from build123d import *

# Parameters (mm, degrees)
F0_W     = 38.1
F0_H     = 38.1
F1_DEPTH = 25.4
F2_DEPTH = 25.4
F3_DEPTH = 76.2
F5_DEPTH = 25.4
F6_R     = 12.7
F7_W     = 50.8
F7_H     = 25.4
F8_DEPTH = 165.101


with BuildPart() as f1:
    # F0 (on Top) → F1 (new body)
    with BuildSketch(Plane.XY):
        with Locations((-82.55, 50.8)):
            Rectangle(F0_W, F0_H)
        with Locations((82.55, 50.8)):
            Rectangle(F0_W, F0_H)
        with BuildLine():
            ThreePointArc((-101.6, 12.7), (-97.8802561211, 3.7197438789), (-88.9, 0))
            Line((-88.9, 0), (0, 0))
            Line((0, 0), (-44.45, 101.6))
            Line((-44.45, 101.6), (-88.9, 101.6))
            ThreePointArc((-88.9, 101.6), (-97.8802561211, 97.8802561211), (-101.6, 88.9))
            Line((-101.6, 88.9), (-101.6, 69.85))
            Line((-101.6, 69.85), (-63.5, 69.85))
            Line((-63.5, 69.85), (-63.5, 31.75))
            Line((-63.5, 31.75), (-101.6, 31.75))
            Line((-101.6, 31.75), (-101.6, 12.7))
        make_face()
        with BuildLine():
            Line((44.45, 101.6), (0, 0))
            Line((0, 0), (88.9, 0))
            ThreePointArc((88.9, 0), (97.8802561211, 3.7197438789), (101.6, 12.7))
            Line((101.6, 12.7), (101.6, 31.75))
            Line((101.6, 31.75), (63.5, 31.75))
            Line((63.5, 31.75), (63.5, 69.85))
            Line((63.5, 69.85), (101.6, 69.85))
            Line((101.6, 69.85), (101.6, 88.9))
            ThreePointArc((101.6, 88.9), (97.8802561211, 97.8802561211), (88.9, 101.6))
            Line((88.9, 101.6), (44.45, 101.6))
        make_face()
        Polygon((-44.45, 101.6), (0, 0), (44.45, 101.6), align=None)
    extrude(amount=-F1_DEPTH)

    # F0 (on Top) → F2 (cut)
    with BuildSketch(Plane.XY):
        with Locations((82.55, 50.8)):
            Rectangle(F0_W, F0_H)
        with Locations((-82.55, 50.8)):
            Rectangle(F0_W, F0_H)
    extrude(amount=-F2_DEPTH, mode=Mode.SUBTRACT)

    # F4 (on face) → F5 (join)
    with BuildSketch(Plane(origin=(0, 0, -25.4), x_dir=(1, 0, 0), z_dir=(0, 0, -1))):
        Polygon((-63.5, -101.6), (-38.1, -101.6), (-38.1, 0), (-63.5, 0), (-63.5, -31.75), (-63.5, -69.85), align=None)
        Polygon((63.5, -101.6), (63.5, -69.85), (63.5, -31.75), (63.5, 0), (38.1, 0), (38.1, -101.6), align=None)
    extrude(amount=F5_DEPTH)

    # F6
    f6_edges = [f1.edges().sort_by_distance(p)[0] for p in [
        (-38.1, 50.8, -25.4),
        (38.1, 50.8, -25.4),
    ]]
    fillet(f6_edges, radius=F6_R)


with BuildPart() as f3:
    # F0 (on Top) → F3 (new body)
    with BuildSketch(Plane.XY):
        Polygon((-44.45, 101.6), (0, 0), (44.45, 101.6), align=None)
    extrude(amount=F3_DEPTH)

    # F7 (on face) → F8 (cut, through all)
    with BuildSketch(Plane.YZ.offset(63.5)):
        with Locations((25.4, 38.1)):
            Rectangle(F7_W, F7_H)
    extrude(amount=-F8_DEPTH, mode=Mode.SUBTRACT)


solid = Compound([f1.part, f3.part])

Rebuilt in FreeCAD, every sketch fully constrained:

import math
import FreeCAD as App
import Part
import Sketcher

V = App.Vector
Q = App.Units.Quantity


def edges_at(feature, points):
    """Names of the edges that pass closest to the given points."""
    edges = feature.Shape.Edges
    near = lambda p: min(range(len(edges)), key=lambda i: edges[i].distToShape(Part.Vertex(*p))[0])
    return sorted({f"Edge{near(p) + 1}" for p in points})

doc = App.newDocument("Part")
params = doc.addObject("Spreadsheet::Sheet", "Params")
for row, (alias, value) in enumerate([
    ("sketch1_radius", "0.5 in"),
    ("sketch1_width", "7 in"),
    ("sketch1_height", "3 in"),
    ("pad1_length", "1 in"),
    ("sketch2_width", "1.5 in"),
    ("pocket1_length", "1 in"),
    ("sketch3_width", "1 in"),
    ("sketch3_height", "4 in"),
    ("pad2_length", "1 in"),
    ("fillet_radius", "0.5 in"),
    ("sketch4_width", "3.5 in"),
    ("pad3_length", "3 in"),
    ("sketch5_width", "2 in"),
    ("sketch5_height", "1 in"),
], start=1):
    params.set(f"A{row}", alias)
    params.set(f"B{row}", "=" + value)
    params.setAlias(f"B{row}", alias)

body = doc.addObject("PartDesign::Body", "Body")

# Sketch on XY plane
sketch1 = body.newObject("Sketcher::SketchObject", "Sketch")
sketch1.AttachmentSupport = (doc.getObject("XY_Plane"), [""])
sketch1.MapMode = "FlatFace"
sketch1.addGeometry([
    Part.ArcOfCircle(Part.Circle(V(-89, 13, 0), V(0, 0, 1), 13), math.radians(180), math.radians(270)),  # 0
    Part.LineSegment(V(-89, 0, 0), V(89, 0, 0)),  # 1
    Part.ArcOfCircle(Part.Circle(V(89, 13, 0), V(0, 0, 1), 13), math.radians(-90), math.radians(0)),  # 2
    Part.LineSegment(V(102, 13, 0), V(102, 89, 0)),  # 3
    Part.ArcOfCircle(Part.Circle(V(89, 89, 0), V(0, 0, 1), 13), math.radians(0), math.radians(90)),  # 4
    Part.LineSegment(V(89, 102, 0), V(-89, 102, 0)),  # 5
    Part.ArcOfCircle(Part.Circle(V(-89, 89, 0), V(0, 0, 1), 13), math.radians(90), math.radians(180)),  # 6
    Part.LineSegment(V(-102, 89, 0), V(-102, 13, 0)),  # 7
], False)
sketch1.addConstraint([
    Sketcher.Constraint("Tangent", 0, 2, 1, 1),
    Sketcher.Constraint("Tangent", 1, 2, 2, 1),
    Sketcher.Constraint("Tangent", 2, 2, 3, 1),
    Sketcher.Constraint("Tangent", 3, 2, 4, 1),
    Sketcher.Constraint("Tangent", 4, 2, 5, 1),
    Sketcher.Constraint("Tangent", 5, 2, 6, 1),
    Sketcher.Constraint("Tangent", 6, 2, 7, 1),
    Sketcher.Constraint("Tangent", 7, 2, 0, 1),
    Sketcher.Constraint("Horizontal", 1),
    Sketcher.Constraint("Vertical", 3),
    Sketcher.Constraint("Horizontal", 5),
    Sketcher.Constraint("Vertical", 7),
    Sketcher.Constraint("Equal", 0, 2),
    Sketcher.Constraint("Equal", 2, 4),
    Sketcher.Constraint("Equal", 4, 6),
    Sketcher.Constraint("Symmetric", 0, 2, 1, 2, -1, 1),
    Sketcher.Constraint("Radius", 0, Q("0.5 in")),
    Sketcher.Constraint("DistanceX", 1, 1, 1, 2, Q("7 in")),
    Sketcher.Constraint("DistanceY", 3, 1, 3, 2, Q("3 in")),
])
sketch1.setExpression("Constraints[16]", "Params.sketch1_radius")
sketch1.setExpression("Constraints[17]", "Params.sketch1_width")
sketch1.setExpression("Constraints[18]", "Params.sketch1_height")
pad1 = body.newObject("PartDesign::Pad", "Pad")
pad1.Profile = sketch1
pad1.setExpression("Length", "Params.pad1_length")
pad1.Reversed = True

# Sketch on XY plane
sketch2 = body.newObject("Sketcher::SketchObject", "Sketch001")
sketch2.AttachmentSupport = (doc.getObject("XY_Plane"), [""])
sketch2.MapMode = "FlatFace"
sketch2.addGeometry([
    Part.LineSegment(V(64, 70, 0), V(64, 32, 0)),  # 0
    Part.LineSegment(V(64, 32, 0), V(102, 32, 0)),  # 1
    Part.LineSegment(V(102, 32, 0), V(102, 70, 0)),  # 2
    Part.LineSegment(V(102, 70, 0), V(64, 70, 0)),  # 3
    Part.LineSegment(V(-102, 70, 0), V(-102, 32, 0)),  # 4
    Part.LineSegment(V(-102, 32, 0), V(-64, 32, 0)),  # 5
    Part.LineSegment(V(-64, 32, 0), V(-64, 70, 0)),  # 6
    Part.LineSegment(V(-64, 70, 0), V(-102, 70, 0)),  # 7
], False)
sketch2.addConstraint([
    Sketcher.Constraint("Coincident", 0, 2, 1, 1),
    Sketcher.Constraint("Coincident", 1, 2, 2, 1),
    Sketcher.Constraint("Coincident", 2, 2, 3, 1),
    Sketcher.Constraint("Coincident", 3, 2, 0, 1),
    Sketcher.Constraint("Coincident", 4, 2, 5, 1),
    Sketcher.Constraint("Coincident", 5, 2, 6, 1),
    Sketcher.Constraint("Coincident", 6, 2, 7, 1),
    Sketcher.Constraint("Coincident", 7, 2, 4, 1),
    Sketcher.Constraint("Vertical", 0),
    Sketcher.Constraint("Horizontal", 1),
    Sketcher.Constraint("Vertical", 2),
    Sketcher.Constraint("Horizontal", 3),
    Sketcher.Constraint("Vertical", 4),
    Sketcher.Constraint("Horizontal", 5),
    Sketcher.Constraint("Vertical", 6),
    Sketcher.Constraint("Horizontal", 7),
    Sketcher.Constraint("Symmetric", 1, 2, 4, 2, -2),
    Sketcher.Constraint("Symmetric", 3, 2, 6, 2, -2),
    Sketcher.Constraint("Equal", 7, 0),
    Sketcher.Constraint("DistanceX", 1, 1, 1, 2, Q("1.5 in")),
    Sketcher.Constraint("DistanceX", -1, 1, 1, 2, Q("4 in")),
    Sketcher.Constraint("DistanceY", -1, 1, 0, 2, Q("1.25 in")),
])
sketch2.setExpression("Constraints[19]", "Params.sketch2_width")
pocket1 = body.newObject("PartDesign::Pocket", "Pocket")
pocket1.Profile = sketch2
pocket1.setExpression("Length", "Params.pocket1_length")

# Sketch on XY plane
sketch3 = body.newObject("Sketcher::SketchObject", "Sketch002")
sketch3.AttachmentSupport = (doc.getObject("XY_Plane"), [""])
sketch3.MapMode = "FlatFace"
sketch3.AttachmentOffset = App.Placement(V(0, 0, -1 * 25.4), App.Rotation())
sketch3.addGeometry([
    Part.LineSegment(V(-64, 102, 0), V(-38, 102, 0)),  # 0
    Part.LineSegment(V(-38, 102, 0), V(-38, 0, 0)),  # 1
    Part.LineSegment(V(-38, 0, 0), V(-64, 0, 0)),  # 2
    Part.LineSegment(V(-64, 0, 0), V(-64, 102, 0)),  # 3
    Part.LineSegment(V(64, 102, 0), V(64, 0, 0)),  # 4
    Part.LineSegment(V(64, 0, 0), V(38, 0, 0)),  # 5
    Part.LineSegment(V(38, 0, 0), V(38, 102, 0)),  # 6
    Part.LineSegment(V(38, 102, 0), V(64, 102, 0)),  # 7
], False)
sketch3.addConstraint([
    Sketcher.Constraint("Coincident", 0, 2, 1, 1),
    Sketcher.Constraint("Coincident", 1, 2, 2, 1),
    Sketcher.Constraint("Coincident", 2, 2, 3, 1),
    Sketcher.Constraint("Coincident", 3, 2, 0, 1),
    Sketcher.Constraint("Coincident", 4, 2, 5, 1),
    Sketcher.Constraint("Coincident", 5, 2, 6, 1),
    Sketcher.Constraint("Coincident", 6, 2, 7, 1),
    Sketcher.Constraint("Coincident", 7, 2, 4, 1),
    Sketcher.Constraint("Horizontal", 0),
    Sketcher.Constraint("Vertical", 1),
    Sketcher.Constraint("Horizontal", 2),
    Sketcher.Constraint("Vertical", 3),
    Sketcher.Constraint("Vertical", 4),
    Sketcher.Constraint("Horizontal", 5),
    Sketcher.Constraint("Vertical", 6),
    Sketcher.Constraint("Horizontal", 7),
    Sketcher.Constraint("Symmetric", 2, 2, 4, 2, -1, 1),
    Sketcher.Constraint("Symmetric", 1, 2, 5, 2, -2),
    Sketcher.Constraint("Horizontal", 3, 2, 6, 2),
    Sketcher.Constraint("DistanceX", 0, 1, 0, 2, Q("1 in")),
    Sketcher.Constraint("DistanceY", 1, 2, 1, 1, Q("4 in")),
    Sketcher.Constraint("DistanceX", 1, 2, 4, 2, Q("4 in")),
])
sketch3.setExpression("Constraints[19]", "Params.sketch3_width")
sketch3.setExpression("Constraints[20]", "Params.sketch3_height")
pad2 = body.newObject("PartDesign::Pad", "Pad001")
pad2.Profile = sketch3
pad2.setExpression("Length", "Params.pad2_length")
pad2.Reversed = True
doc.recompute()

fillet = body.newObject("PartDesign::Fillet", "Fillet")
fillet.Base = (pad2, edges_at(pad2, [(-38.1, 50.8, -25.4), (38.1, 50.8, -25.4)]))
fillet.setExpression("Radius", "Params.fillet_radius")
body2 = doc.addObject("PartDesign::Body", "Body001")

# Sketch on XY plane
sketch4 = body2.newObject("Sketcher::SketchObject", "Sketch003")
sketch4.AttachmentSupport = (doc.getObject("XY_Plane001"), [""])
sketch4.MapMode = "FlatFace"
sketch4.addGeometry([
    Part.LineSegment(V(-44, 102, 0), V(0, 0, 0)),
    Part.LineSegment(V(0, 0, 0), V(44, 102, 0)),
    Part.LineSegment(V(44, 102, 0), V(-44, 102, 0)),
], False)
sketch4.addConstraint([
    Sketcher.Constraint("Coincident", 0, 2, 1, 1),
    Sketcher.Constraint("Coincident", 1, 2, 2, 1),
    Sketcher.Constraint("Coincident", 2, 2, 0, 1),
    Sketcher.Constraint("Horizontal", 2),
    Sketcher.Constraint("Coincident", 0, 2, -1, 1),
    Sketcher.Constraint("Equal", 0, 1),
    Sketcher.Constraint("DistanceX", 2, 2, 2, 1, Q("3.5 in")),
    Sketcher.Constraint("DistanceY", -1, 1, 1, 2, Q("4 in")),
])
sketch4.setExpression("Constraints[6]", "Params.sketch4_width")
pad3 = body2.newObject("PartDesign::Pad", "Pad002")
pad3.Profile = sketch4
pad3.setExpression("Length", "Params.pad3_length")

# Sketch on YZ plane
sketch5 = body2.newObject("Sketcher::SketchObject", "Sketch004")
sketch5.AttachmentSupport = (doc.getObject("YZ_Plane001"), [""])
sketch5.MapMode = "FlatFace"
sketch5.AttachmentOffset = App.Placement(V(0, 0, 2.5 * 25.4), App.Rotation())
sketch5.addGeometry([
    Part.LineSegment(V(0, 51, 0), V(0, 25, 0)),
    Part.LineSegment(V(0, 25, 0), V(51, 25, 0)),
    Part.LineSegment(V(51, 25, 0), V(51, 51, 0)),
    Part.LineSegment(V(51, 51, 0), V(0, 51, 0)),
], False)
sketch5.addConstraint([
    Sketcher.Constraint("Coincident", 0, 2, 1, 1),
    Sketcher.Constraint("Coincident", 1, 2, 2, 1),
    Sketcher.Constraint("Coincident", 2, 2, 3, 1),
    Sketcher.Constraint("Coincident", 3, 2, 0, 1),
    Sketcher.Constraint("Vertical", 0),
    Sketcher.Constraint("Horizontal", 1),
    Sketcher.Constraint("Vertical", 2),
    Sketcher.Constraint("Horizontal", 3),
    Sketcher.Constraint("PointOnObject", 0, 2, -2),
    Sketcher.Constraint("DistanceX", 1, 1, 1, 2, Q("2 in")),
    Sketcher.Constraint("DistanceY", 0, 2, 0, 1, Q("1 in")),
    Sketcher.Constraint("DistanceY", -1, 1, 0, 2, Q("1 in")),
])
sketch5.setExpression("Constraints[9]", "Params.sketch5_width")
sketch5.setExpression("Constraints[10]", "Params.sketch5_height")
pocket2 = body2.newObject("PartDesign::Pocket", "Pocket001")
pocket2.Profile = sketch5
pocket2.Type = "ThroughAll"

doc.recompute()
